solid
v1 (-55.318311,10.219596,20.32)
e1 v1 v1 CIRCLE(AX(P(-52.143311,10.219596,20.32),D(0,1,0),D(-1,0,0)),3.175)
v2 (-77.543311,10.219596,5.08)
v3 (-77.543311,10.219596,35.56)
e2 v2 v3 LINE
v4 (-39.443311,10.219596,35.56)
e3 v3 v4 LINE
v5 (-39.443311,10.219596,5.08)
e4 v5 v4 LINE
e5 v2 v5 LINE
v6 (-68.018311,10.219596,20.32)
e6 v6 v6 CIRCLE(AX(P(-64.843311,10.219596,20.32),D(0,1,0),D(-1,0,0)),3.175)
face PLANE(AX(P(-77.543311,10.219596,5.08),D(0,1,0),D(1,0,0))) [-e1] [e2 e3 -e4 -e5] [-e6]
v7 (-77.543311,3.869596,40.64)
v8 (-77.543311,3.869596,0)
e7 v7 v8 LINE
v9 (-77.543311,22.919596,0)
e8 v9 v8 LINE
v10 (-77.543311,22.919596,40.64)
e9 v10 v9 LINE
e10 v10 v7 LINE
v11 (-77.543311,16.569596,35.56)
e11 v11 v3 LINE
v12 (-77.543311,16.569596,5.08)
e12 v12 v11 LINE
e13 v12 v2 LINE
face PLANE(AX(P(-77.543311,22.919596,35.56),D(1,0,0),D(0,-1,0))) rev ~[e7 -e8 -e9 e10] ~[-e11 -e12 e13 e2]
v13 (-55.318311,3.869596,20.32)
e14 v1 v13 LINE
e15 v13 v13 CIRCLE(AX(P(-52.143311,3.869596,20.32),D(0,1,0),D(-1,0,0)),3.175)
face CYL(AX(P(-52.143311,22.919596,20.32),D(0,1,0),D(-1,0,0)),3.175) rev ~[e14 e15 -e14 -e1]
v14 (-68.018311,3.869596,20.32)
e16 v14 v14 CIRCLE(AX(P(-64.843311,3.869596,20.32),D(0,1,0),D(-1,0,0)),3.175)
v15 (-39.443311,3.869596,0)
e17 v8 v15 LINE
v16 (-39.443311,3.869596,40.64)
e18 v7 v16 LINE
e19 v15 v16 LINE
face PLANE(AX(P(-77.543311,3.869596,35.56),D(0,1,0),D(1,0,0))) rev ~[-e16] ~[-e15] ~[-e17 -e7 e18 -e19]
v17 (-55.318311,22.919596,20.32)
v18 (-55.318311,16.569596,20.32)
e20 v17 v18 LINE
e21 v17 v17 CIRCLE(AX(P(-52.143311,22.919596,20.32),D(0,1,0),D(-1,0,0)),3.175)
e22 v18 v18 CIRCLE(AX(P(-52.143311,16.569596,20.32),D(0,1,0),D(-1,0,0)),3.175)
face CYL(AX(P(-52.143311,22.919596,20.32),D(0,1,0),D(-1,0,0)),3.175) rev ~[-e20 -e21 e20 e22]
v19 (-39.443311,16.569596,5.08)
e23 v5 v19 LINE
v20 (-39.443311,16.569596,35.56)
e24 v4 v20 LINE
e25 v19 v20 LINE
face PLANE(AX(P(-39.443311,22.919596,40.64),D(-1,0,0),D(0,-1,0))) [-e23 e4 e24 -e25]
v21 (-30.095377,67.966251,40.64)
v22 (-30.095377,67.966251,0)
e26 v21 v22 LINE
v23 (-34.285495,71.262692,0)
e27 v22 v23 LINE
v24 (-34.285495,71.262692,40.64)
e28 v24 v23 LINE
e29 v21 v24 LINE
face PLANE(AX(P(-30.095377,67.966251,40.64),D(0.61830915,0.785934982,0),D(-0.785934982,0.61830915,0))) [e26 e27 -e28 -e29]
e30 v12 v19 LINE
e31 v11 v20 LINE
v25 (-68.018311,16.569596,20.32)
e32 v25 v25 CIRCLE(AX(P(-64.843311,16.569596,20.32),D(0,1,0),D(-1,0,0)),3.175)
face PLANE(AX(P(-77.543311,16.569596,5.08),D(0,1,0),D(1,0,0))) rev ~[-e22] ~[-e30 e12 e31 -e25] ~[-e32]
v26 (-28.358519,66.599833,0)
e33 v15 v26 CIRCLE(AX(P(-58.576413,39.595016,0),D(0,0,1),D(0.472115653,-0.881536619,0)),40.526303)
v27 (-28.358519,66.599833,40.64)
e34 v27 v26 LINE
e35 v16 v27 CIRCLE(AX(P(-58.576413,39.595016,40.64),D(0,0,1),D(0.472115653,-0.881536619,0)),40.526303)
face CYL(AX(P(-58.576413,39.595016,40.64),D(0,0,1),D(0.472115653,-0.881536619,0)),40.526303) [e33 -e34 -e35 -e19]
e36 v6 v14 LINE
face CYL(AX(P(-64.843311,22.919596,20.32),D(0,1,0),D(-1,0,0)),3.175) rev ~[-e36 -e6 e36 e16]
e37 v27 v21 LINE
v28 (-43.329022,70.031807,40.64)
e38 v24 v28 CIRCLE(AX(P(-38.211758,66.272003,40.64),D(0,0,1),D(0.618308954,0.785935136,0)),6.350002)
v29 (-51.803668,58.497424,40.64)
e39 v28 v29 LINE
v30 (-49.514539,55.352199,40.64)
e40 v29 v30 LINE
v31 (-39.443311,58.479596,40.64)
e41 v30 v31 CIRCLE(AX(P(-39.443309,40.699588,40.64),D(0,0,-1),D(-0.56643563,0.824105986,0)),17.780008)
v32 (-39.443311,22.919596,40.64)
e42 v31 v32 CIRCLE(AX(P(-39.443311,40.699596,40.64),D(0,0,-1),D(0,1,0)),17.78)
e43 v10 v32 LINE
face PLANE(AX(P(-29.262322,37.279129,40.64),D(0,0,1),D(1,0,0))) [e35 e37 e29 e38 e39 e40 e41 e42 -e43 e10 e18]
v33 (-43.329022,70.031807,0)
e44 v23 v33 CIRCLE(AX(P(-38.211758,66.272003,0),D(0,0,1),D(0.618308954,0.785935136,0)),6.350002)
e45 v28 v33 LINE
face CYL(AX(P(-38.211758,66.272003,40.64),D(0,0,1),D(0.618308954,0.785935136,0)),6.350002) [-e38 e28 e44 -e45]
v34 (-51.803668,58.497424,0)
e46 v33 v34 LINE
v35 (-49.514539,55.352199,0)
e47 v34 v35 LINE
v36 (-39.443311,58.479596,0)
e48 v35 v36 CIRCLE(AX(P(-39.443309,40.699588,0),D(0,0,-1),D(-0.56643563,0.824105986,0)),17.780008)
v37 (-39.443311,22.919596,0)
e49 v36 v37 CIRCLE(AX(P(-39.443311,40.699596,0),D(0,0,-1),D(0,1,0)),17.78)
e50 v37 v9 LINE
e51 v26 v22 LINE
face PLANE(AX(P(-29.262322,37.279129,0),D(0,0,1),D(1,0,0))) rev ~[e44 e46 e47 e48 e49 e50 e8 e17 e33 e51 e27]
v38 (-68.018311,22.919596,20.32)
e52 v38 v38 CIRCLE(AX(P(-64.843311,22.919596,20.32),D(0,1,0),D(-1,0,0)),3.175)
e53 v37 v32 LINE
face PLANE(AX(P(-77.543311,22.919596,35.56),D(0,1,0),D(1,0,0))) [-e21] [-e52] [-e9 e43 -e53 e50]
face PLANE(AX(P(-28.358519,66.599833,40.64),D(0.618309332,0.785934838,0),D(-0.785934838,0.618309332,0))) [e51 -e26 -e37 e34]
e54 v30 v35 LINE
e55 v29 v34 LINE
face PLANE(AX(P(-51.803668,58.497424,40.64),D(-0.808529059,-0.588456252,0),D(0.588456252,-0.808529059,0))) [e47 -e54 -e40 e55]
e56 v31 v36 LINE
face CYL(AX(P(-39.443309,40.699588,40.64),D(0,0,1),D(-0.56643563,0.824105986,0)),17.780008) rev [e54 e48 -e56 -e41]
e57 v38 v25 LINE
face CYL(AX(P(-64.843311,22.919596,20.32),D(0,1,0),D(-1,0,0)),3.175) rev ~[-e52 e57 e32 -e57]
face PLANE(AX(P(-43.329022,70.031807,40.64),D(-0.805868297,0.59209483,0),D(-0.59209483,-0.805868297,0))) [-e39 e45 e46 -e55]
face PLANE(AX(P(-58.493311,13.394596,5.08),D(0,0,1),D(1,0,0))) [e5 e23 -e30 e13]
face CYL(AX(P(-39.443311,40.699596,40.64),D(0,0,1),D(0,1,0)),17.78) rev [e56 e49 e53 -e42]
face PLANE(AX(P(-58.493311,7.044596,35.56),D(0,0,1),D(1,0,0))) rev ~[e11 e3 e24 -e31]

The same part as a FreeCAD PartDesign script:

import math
import FreeCAD as App
import Part
import Sketcher
from FreeCAD import Vector
Q = App.Units.Quantity

doc = App.newDocument("Part")
body = doc.addObject("PartDesign::Body", "Body")

sketch1 = body.newObject("Sketcher::SketchObject", "Sketch")
sketch1.AttachmentSupport = (doc.getObject("XY_Plane"), [""])
sketch1.MapMode = "FlatFace"
sketch1.addGeometry([
    Part.LineSegment(Vector(-78, 4, 0), Vector(-39, 4, 0)),
    Part.LineSegment(Vector(-39, 4, 0), Vector(-39, 23, 0)),
    Part.LineSegment(Vector(-39, 23, 0), Vector(-78, 23, 0)),
    Part.LineSegment(Vector(-78, 23, 0), Vector(-78, 4, 0)),
], False)
sketch1.addConstraint([
    Sketcher.Constraint("Coincident", 0, 2, 1, 1),
    Sketcher.Constraint("Coincident", 1, 2, 2, 1),
    Sketcher.Constraint("Coincident", 2, 2, 3, 1),
    Sketcher.Constraint("Coincident", 3, 2, 0, 1),
    Sketcher.Constraint("Horizontal", 0),
    Sketcher.Constraint("Vertical", 1),
    Sketcher.Constraint("Horizontal", 2),
    Sketcher.Constraint("Vertical", 3),
    Sketcher.Constraint("DistanceX", 0, 1, 0, 2, Q("1.5 in")),
    Sketcher.Constraint("DistanceY", 1, 1, 1, 2, Q("0.75 in")),
    Sketcher.Constraint("DistanceX", 0, 2, -1, 1, 39.443311),
    Sketcher.Constraint("DistanceY", -1, 1, 0, 2, 3.869596),
])
pad1 = body.newObject("PartDesign::Pad", "Pad")
pad1.Profile = sketch1
pad1.Length = Q("0.2 in")

sketch2 = body.newObject("Sketcher::SketchObject", "Sketch001")
sketch2.AttachmentSupport = (doc.getObject("XY_Plane"), [""])
sketch2.MapMode = "FlatFace"
sketch2.AttachmentOffset = App.Placement(Vector(0, 0, 0.2 * 25.4), App.Rotation())
sketch2.addGeometry([
    Part.LineSegment(Vector(-78, 23, 0), Vector(-78, 17, 0)),
    Part.LineSegment(Vector(-78, 17, 0), Vector(-39, 17, 0)),
    Part.LineSegment(Vector(-39, 17, 0), Vector(-39, 23, 0)),
    Part.LineSegment(Vector(-39, 23, 0), Vector(-78, 23, 0)),
    Part.LineSegment(Vector(-78, 10, 0), Vector(-78, 4, 0)),
    Part.LineSegment(Vector(-78, 4, 0), Vector(-39, 4, 0)),
    Part.LineSegment(Vector(-39, 4, 0), Vector(-39, 10, 0)),
    Part.LineSegment(Vector(-39, 10, 0), Vector(-78, 10, 0)),
], False)
sketch2.addConstraint([
    Sketcher.Constraint("Coincident", 0, 2, 1, 1),
    Sketcher.Constraint("Coincident", 1, 2, 2, 1),
    Sketcher.Constraint("Coincident", 2, 2, 3, 1),
    Sketcher.Constraint("Coincident", 3, 2, 0, 1),
    Sketcher.Constraint("Coincident", 4, 2, 5, 1),
    Sketcher.Constraint("Coincident", 5, 2, 6, 1),
    Sketcher.Constraint("Coincident", 6, 2, 7, 1),
    Sketcher.Constraint("Coincident", 7, 2, 4, 1),
    Sketcher.Constraint("Vertical", 0),
    Sketcher.Constraint("Horizontal", 1),
    Sketcher.Constraint("Vertical", 2),
    Sketcher.Constraint("Horizontal", 3),
    Sketcher.Constraint("Vertical", 4),
    Sketcher.Constraint("Horizontal", 5),
    Sketcher.Constraint("Vertical", 6),
    Sketcher.Constraint("Horizontal", 7),
    Sketcher.Constraint("Vertical", 3, 2, 4, 2),
    Sketcher.Constraint("Vertical", 2, 2, 5, 2),
    Sketcher.Constraint("Equal", 2, 4),
    Sketcher.Constraint("DistanceX", 1, 1, 1, 2, Q("1.5 in")),
    Sketcher.Constraint("DistanceY", 0, 2, 0, 1, Q("0.25 in")),
    Sketcher.Constraint("DistanceY", 4, 2, 0, 2, Q("0.5 in")),
    Sketcher.Constraint("DistanceX", 0, 2, -1, 1, 77.543311),
    Sketcher.Constraint("DistanceY", -1, 1, 0, 2, 16.569596),
])
pad2 = body.newObject("PartDesign::Pad", "Pad001")
pad2.Profile = sketch2
pad2.Length = Q("1.2 in")

sketch3 = body.newObject("Sketcher::SketchObject", "Sketch002")
sketch3.AttachmentSupport = (doc.getObject("XY_Plane"), [""])
sketch3.MapMode = "FlatFace"
sketch3.AttachmentOffset = App.Placement(Vector(0, 0, 1.4 * 25.4), App.Rotation())
sketch3.addGeometry([
    Part.LineSegment(Vector(-78, 4, 0), Vector(-39, 4, 0)),
    Part.LineSegment(Vector(-39, 4, 0), Vector(-39, 23, 0)),
    Part.LineSegment(Vector(-39, 23, 0), Vector(-78, 23, 0)),
    Part.LineSegment(Vector(-78, 23, 0), Vector(-78, 4, 0)),
], False)
sketch3.addConstraint([
    Sketcher.Constraint("Coincident", 0, 2, 1, 1),
    Sketcher.Constraint("Coincident", 1, 2, 2, 1),
    Sketcher.Constraint("Coincident", 2, 2, 3, 1),
    Sketcher.Constraint("Coincident", 3, 2, 0, 1),
    Sketcher.Constraint("Horizontal", 0),
    Sketcher.Constraint("Vertical", 1),
    Sketcher.Constraint("Horizontal", 2),
    Sketcher.Constraint("Vertical", 3),
    Sketcher.Constraint("DistanceX", 0, 1, 0, 2, Q("1.5 in")),
    Sketcher.Constraint("DistanceY", 1, 1, 1, 2, Q("0.75 in")),
    Sketcher.Constraint("DistanceX", 0, 2, -1, 1, 39.443311),
    Sketcher.Constraint("DistanceY", -1, 1, 0, 2, 3.869596),
])
pad3 = body.newObject("PartDesign::Pad", "Pad002")
pad3.Profile = sketch3
pad3.Length = Q("0.2 in")

sketch4 = body.newObject("Sketcher::SketchObject", "Sketch003")
sketch4.AttachmentSupport = (doc.getObject("XY_Plane"), [""])
sketch4.MapMode = "FlatFace"
sketch4.AttachmentOffset = App.Placement(Vector(0, 0, 1.6 * 25.4), App.Rotation())
sketch4.addGeometry([
    Part.ArcOfCircle(Part.Circle(Vector(-39.4, 40.7, 0), Vector(0, 0, 1), 17.8), math.radians(-90), math.radians(90)),
    Part.LineSegment(Vector(-39.4, 22.9, 0), Vector(-39.4, 3.9, 0)),
    Part.ArcOfCircle(Part.Circle(Vector(-58.6, 39.6, 0), Vector(0, 0, 1), 40.5), math.radians(-62), math.radians(42)),
    Part.LineSegment(Vector(-28.4, 66.6, 0), Vector(-30.1, 68, 0)),
    Part.LineSegment(Vector(-30.1, 68, 0), Vector(-34.3, 71.3, 0)),
    Part.ArcOfCircle(Part.Circle(Vector(-38.2, 66.3, 0), Vector(0, 0, 1), 6.4), math.radians(52), math.radians(144)),
    Part.LineSegment(Vector(-43.3, 70, 0), Vector(-51.8, 58.5, 0)),
    Part.LineSegment(Vector(-51.8, 58.5, 0), Vector(-49.5, 55.4, 0)),
    Part.ArcOfCircle(Part.Circle(Vector(-39.4, 40.7, 0), Vector(0, 0, 1), 17.8), math.radians(90), math.radians(125)),
], False)
sketch4.addConstraint([
    Sketcher.Constraint("Coincident", 0, 1, 1, 1),
    Sketcher.Constraint("Coincident", 1, 2, 2, 1),
    Sketcher.Constraint("Coincident", 2, 2, 3, 1),
    Sketcher.Constraint("Coincident", 3, 2, 4, 1),
    Sketcher.Constraint("Tangent", 4, 2, 5, 1),
    Sketcher.Constraint("Tangent", 5, 2, 6, 1),
    Sketcher.Constraint("Coincident", 6, 2, 7, 1),
    Sketcher.Constraint("Coincident", 7, 2, 8, 2),
    Sketcher.Constraint("Tangent", 8, 1, 0, 2),
    Sketcher.Constraint("Vertical", 1),
    Sketcher.Constraint("Parallel", 3, 4),
    Sketcher.Constraint("Vertical", 1, 2, 8, 1),
    Sketcher.Constraint("Radius", 0, Q("0.7 in")),
    Sketcher.Constraint("Radius", 5, Q("0.2500001 in")),
    Sketcher.Constraint("DistanceY", 1, 2, 1, 1, Q("0.75 in")),
    Sketcher.Constraint("Radius", 8, 17.780008),
    Sketcher.Constraint("DistanceX", 5, 3, -1, 1, Q("1.5043999 in")),
    Sketcher.Constraint("Radius", 2, 40.526303),
    Sketcher.Constraint("DistanceY", -1, 1, 7, 2, 55.352199),
    Sketcher.Constraint("Distance", 4, 5.33138),
    Sketcher.Constraint("Distance", 7, 3.890058),
    Sketcher.Constraint("DistanceX", 0, 3, -1, 1, 39.443311),
    Sketcher.Constraint("DistanceX", 0, 1, -1, 1, 39.443311),
    Sketcher.Constraint("DistanceX", 2, 2, -1, 1, 28.358519),
    Sketcher.Constraint("DistanceY", -1, 1, 3, 2, 67.966251),
    Sketcher.Constraint("DistanceY", -1, 1, 4, 2, 71.262692),
    Sketcher.Constraint("DistanceX", 5, 2, -1, 1, 43.329022),
    Sketcher.Constraint("DistanceX", 6, 2, -1, 1, 51.803668),
])
pad4 = body.newObject("PartDesign::Pad", "Pad003")
pad4.Profile = sketch4
pad4.Length = Q("1.6 in")
pad4.Reversed = True

sketch5 = body.newObject("Sketcher::SketchObject", "Sketch004")
sketch5.AttachmentSupport = (doc.getObject("XZ_Plane"), [""])
sketch5.MapMode = "FlatFace"
sketch5.AttachmentOffset = App.Placement(Vector(0, 0, -22.919596), App.Rotation())
sketch5.addGeometry([
    Part.Circle(Vector(-64.8, 20.3, 0), Vector(0, 0, 1), 3.2),
    Part.Circle(Vector(-52.1, 20.3, 0), Vector(0, 0, 1), 3.2),
], False)
sketch5.addConstraint([
    Sketcher.Constraint("Equal", 0, 1),
    Sketcher.Constraint("Horizontal", 0, 3, 1, 3),
    Sketcher.Constraint("Diameter", 0, Q("0.25 in")),
    Sketcher.Constraint("DistanceY", -1, 1, 0, 3, Q("0.8 in")),
    Sketcher.Constraint("DistanceX", 0, 3, 1, 3, Q("0.5 in")),
    Sketcher.Constraint("DistanceX", 0, 3, -1, 1, 64.843311),
])
pocket1 = body.newObject("PartDesign::Pocket", "Pocket")
pocket1.Profile = sketch5
pocket1.Length = Q("1 in")
pocket1.Reversed = True

doc.recompute()
